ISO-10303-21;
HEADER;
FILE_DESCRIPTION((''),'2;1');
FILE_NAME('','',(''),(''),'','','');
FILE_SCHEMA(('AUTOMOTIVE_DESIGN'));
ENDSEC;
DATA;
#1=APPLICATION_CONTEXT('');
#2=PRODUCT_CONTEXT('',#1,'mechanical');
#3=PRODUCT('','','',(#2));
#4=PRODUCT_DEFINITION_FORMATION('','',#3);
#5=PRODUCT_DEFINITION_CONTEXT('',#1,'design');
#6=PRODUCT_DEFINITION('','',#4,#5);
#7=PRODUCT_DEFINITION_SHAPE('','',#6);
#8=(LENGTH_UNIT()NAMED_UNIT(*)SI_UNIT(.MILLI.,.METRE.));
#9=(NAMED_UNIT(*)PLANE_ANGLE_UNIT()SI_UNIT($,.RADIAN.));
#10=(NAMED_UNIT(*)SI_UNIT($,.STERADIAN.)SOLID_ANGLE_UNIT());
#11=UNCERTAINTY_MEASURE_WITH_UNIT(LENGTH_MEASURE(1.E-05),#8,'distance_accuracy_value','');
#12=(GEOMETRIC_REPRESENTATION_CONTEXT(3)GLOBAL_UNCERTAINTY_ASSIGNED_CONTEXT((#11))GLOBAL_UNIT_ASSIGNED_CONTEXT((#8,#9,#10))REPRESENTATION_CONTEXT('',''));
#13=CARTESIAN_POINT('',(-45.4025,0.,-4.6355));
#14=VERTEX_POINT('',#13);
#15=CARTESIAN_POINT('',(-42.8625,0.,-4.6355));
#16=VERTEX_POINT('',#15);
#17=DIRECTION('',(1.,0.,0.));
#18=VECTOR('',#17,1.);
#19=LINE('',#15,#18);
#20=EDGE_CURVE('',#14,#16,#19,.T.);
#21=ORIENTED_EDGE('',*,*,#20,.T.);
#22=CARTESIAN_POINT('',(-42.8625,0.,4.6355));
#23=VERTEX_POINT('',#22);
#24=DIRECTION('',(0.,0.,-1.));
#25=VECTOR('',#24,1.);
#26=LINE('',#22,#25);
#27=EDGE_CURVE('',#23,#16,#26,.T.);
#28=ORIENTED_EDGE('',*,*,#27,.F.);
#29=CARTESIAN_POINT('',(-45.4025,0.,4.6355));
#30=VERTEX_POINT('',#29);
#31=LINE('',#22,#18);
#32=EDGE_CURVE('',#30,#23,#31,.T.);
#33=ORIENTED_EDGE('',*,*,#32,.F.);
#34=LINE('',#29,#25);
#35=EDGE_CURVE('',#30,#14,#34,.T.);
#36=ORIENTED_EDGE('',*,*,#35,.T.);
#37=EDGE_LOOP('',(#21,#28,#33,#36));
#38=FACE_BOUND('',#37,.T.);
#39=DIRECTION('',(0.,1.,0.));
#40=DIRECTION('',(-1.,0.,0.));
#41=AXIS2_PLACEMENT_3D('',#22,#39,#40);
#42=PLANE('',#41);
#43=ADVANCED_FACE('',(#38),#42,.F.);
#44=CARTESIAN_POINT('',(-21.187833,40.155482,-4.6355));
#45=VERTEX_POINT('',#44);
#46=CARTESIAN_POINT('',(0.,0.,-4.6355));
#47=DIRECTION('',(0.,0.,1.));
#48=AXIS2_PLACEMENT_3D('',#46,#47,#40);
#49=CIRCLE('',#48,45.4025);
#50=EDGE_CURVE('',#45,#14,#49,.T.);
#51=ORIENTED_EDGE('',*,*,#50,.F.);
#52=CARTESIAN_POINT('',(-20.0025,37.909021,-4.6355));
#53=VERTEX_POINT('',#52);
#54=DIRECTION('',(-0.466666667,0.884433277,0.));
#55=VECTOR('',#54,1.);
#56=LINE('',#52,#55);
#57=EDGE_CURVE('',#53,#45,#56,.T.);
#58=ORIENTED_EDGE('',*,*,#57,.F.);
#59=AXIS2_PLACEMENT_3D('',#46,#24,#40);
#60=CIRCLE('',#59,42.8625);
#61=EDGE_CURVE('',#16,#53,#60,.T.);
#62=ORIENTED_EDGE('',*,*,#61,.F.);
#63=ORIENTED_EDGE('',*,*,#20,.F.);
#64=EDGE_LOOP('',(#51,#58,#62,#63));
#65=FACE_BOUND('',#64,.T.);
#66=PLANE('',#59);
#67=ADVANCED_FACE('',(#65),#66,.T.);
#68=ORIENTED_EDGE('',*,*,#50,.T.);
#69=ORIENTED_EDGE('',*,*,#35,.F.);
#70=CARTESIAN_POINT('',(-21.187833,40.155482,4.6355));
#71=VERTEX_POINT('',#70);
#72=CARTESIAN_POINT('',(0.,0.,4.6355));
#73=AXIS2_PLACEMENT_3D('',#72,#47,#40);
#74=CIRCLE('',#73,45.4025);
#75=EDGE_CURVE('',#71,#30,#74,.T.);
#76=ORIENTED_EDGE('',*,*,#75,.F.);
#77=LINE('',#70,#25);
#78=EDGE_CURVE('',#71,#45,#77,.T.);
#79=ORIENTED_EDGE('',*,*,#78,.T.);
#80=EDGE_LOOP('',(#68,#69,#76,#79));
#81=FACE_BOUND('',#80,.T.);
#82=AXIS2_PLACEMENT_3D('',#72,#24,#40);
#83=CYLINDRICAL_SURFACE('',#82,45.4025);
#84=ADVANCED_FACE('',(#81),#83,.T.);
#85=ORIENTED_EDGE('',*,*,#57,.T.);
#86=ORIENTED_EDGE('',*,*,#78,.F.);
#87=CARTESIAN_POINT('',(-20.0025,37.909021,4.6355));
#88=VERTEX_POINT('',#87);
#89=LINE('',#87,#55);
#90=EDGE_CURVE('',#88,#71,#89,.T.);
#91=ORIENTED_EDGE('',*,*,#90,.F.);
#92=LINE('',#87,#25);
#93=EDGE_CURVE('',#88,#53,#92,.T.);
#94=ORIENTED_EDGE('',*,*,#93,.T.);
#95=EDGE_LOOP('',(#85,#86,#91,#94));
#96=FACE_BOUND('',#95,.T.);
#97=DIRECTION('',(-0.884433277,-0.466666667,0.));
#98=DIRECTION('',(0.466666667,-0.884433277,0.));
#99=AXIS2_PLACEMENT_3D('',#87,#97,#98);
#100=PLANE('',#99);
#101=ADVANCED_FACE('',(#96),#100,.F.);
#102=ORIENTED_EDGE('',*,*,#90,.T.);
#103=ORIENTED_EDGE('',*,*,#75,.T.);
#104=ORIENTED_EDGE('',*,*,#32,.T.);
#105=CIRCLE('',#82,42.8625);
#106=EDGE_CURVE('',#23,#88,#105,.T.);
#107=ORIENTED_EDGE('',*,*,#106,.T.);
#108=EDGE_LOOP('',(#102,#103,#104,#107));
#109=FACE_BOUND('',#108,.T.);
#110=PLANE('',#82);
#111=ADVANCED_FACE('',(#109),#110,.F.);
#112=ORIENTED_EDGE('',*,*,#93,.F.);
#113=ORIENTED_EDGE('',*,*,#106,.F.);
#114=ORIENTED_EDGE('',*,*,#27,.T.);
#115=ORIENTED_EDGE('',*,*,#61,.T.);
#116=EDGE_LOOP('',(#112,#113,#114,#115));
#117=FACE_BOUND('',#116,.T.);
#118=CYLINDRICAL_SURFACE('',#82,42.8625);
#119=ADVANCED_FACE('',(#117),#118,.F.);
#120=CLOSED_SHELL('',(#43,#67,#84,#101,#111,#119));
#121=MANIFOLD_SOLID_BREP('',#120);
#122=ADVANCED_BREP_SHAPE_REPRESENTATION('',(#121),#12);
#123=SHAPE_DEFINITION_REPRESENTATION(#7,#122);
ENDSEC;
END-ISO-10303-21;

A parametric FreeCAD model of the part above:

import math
import FreeCAD as App
import Part
import Sketcher

V = App.Vector
Q = App.Units.Quantity

doc = App.newDocument("Part")
body = doc.addObject("PartDesign::Body", "Body")

# Sketch on XY plane
sketch1 = body.newObject("Sketcher::SketchObject", "Sketch")
sketch1.AttachmentSupport = (doc.getObject("XY_Plane"), [""])
sketch1.MapMode = "FlatFace"
sketch1.addGeometry(Part.LineSegment(V(-45.4025, 0, 0), V(-42.8625, 0, 0)), False)
sketch1.addGeometry(Part.ArcOfCircle(Part.Circle(V(0, 0, 0), V(0, 0, 1), 42.8625), math.radians(117.818139), math.radians(180)), False)
sketch1.addGeometry(Part.LineSegment(V(-20.0025, 37.909021, 0), V(-21.187833, 40.155482, 0)), False)
sketch1.addGeometry(Part.ArcOfCircle(Part.Circle(V(0, 0, 0), V(0, 0, 1), 45.4025), math.radians(117.818139), math.radians(180)), False)
sketch1.addConstraint(Sketcher.Constraint("Coincident", 0, 2, 1, 2))
sketch1.addConstraint(Sketcher.Constraint("Coincident", 1, 1, 2, 1))
sketch1.addConstraint(Sketcher.Constraint("Coincident", 2, 2, 3, 1))
sketch1.addConstraint(Sketcher.Constraint("Coincident", 3, 2, 0, 1))
sketch1.addConstraint(Sketcher.Constraint("Horizontal", 0))
sketch1.addConstraint(Sketcher.Constraint("Coincident", 1, 3, -1, 1))
sketch1.addConstraint(Sketcher.Constraint("Coincident", 3, 3, -1, 1))
sketch1.addConstraint(Sketcher.Constraint("PointOnObject", 0, 2, -1))
sketch1.addConstraint(Sketcher.Constraint("DistanceX", 0, 1, 0, 2, Q("0.1 in")))
sketch1.addConstraint(Sketcher.Constraint("Radius", 1, Q("1.6875 in")))
sketch1.addConstraint(Sketcher.Constraint("DistanceX", 3, 2, 1, 1, Q("1 in")))
sketch1.addConstraint(Sketcher.Constraint("DistanceY", -1, 1, 2, 2, Q("40.155482 mm")))
pad1 = body.newObject("PartDesign::Pad", "Pad")
pad1.Profile = sketch1
pad1.Length = Q("0.365 in")
pad1.Midplane = True

doc.recompute()
